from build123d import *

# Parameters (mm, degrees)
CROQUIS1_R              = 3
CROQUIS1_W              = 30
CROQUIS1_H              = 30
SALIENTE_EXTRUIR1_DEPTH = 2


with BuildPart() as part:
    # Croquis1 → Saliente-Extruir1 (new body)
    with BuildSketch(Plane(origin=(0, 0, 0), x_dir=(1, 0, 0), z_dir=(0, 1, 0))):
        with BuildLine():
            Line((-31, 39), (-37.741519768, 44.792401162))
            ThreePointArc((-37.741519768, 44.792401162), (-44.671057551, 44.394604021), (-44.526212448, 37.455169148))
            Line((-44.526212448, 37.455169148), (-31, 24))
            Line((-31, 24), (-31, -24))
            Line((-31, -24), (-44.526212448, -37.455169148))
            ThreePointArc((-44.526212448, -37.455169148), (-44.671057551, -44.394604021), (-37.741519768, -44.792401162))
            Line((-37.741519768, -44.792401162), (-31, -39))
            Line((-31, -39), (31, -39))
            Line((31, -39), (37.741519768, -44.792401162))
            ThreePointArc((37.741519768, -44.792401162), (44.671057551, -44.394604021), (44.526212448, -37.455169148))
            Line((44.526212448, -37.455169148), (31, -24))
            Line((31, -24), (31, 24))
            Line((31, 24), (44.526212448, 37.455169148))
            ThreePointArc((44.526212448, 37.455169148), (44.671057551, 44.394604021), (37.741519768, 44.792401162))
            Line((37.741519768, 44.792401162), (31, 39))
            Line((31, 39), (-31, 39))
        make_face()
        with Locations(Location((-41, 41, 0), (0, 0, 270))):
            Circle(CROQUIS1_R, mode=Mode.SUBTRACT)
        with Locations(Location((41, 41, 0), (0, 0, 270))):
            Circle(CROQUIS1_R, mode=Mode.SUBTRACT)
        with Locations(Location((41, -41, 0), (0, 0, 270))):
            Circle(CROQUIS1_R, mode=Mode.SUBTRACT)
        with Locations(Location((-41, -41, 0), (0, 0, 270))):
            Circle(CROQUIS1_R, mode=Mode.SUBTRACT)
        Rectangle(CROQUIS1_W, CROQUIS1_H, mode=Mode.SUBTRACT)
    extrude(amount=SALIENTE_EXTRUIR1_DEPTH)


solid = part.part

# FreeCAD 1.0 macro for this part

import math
import FreeCAD as App
import Part
import Sketcher

doc = App.newDocument("Part")
params = doc.addObject("Spreadsheet::Sheet", "Params")
for row, (alias, value) in enumerate([
    ("sketch1_diameter", "6 mm"),
    ("sketch1_radius", "5 mm"),
    ("sketch1_width", "62 mm"),
    ("sketch1_width2", "30 mm"),
    ("sketch1_height", "48 mm"),
    ("pad1_length", "2 mm"),
], start=1):
    params.set(f"A{row}", alias)
    params.set(f"B{row}", "=" + value)
    params.setAlias(f"B{row}", alias)

body = doc.addObject("PartDesign::Body", "Body")

# Sketch on XZ plane
sketch1 = body.newObject("Sketcher::SketchObject", "Sketch")
sketch1.AttachmentSupport = (doc.getObject("XZ_Plane"), [""])
sketch1.MapMode = "FlatFace"
sketch1.addGeometry(Part.LineSegment(App.Vector(-31, -39, 0), App.Vector(-37.7, -44.8, 0)), False)
sketch1.addGeometry(Part.ArcOfCircle(Part.Circle(App.Vector(-41, -41, 0), App.Vector(0, 0, 1), 5), math.radians(135), math.radians(311)), False)
sketch1.addGeometry(Part.LineSegment(App.Vector(-44.5, -37.5, 0), App.Vector(-31, -24, 0)), False)
sketch1.addGeometry(Part.LineSegment(App.Vector(-31, -24, 0), App.Vector(-31, 24, 0)), False)
sketch1.addGeometry(Part.LineSegment(App.Vector(-31, 24, 0), App.Vector(-44.5, 37.5, 0)), False)
sketch1.addGeometry(Part.ArcOfCircle(Part.Circle(App.Vector(-41, 41, 0), App.Vector(0, 0, 1), 5), math.radians(49), math.radians(225)), False)
sketch1.addGeometry(Part.LineSegment(App.Vector(-37.7, 44.8, 0), App.Vector(-31, 39, 0)), False)
sketch1.addGeometry(Part.LineSegment(App.Vector(-31, 39, 0), App.Vector(31, 39, 0)), False)
sketch1.addGeometry(Part.LineSegment(App.Vector(31, 39, 0), App.Vector(37.7, 44.8, 0)), False)
sketch1.addGeometry(Part.ArcOfCircle(Part.Circle(App.Vector(41, 41, 0), App.Vector(0, 0, 1), 5), math.radians(-45), math.radians(131)), False)
sketch1.addGeometry(Part.LineSegment(App.Vector(44.5, 37.5, 0), App.Vector(31, 24, 0)), False)
sketch1.addGeometry(Part.LineSegment(App.Vector(31, 24, 0), App.Vector(31, -24, 0)), False)
sketch1.addGeometry(Part.LineSegment(App.Vector(31, -24, 0), App.Vector(44.5, -37.5, 0)), False)
sketch1.addGeometry(Part.ArcOfCircle(Part.Circle(App.Vector(41, -41, 0), App.Vector(0, 0, 1), 5), math.radians(-131), math.radians(45)), False)
sketch1.addGeometry(Part.LineSegment(App.Vector(37.7, -44.8, 0), App.Vector(31, -39, 0)), False)
sketch1.addGeometry(Part.LineSegment(App.Vector(31, -39, 0), App.Vector(-31, -39, 0)), False)
sketch1.addGeometry(Part.Circle(App.Vector(-41, 41, 0), App.Vector(0, 0, 1), 3), False)
sketch1.addGeometry(Part.Circle(App.Vector(41, 41, 0), App.Vector(0, 0, 1), 3), False)
sketch1.addGeometry(Part.Circle(App.Vector(-41, -41, 0), App.Vector(0, 0, 1), 3), False)
sketch1.addGeometry(Part.LineSegment(App.Vector(15, 15, 0), App.Vector(-15, 15, 0)), False)
sketch1.addGeometry(Part.LineSegment(App.Vector(-15, 15, 0), App.Vector(-15, -15, 0)), False)
sketch1.addGeometry(Part.LineSegment(App.Vector(-15, -15, 0), App.Vector(15, -15, 0)), False)
sketch1.addGeometry(Part.LineSegment(App.Vector(15, -15, 0), App.Vector(15, 15, 0)), False)
sketch1.addGeometry(Part.Circle(App.Vector(41, -41, 0), App.Vector(0, 0, 1), 3), False)
sketch1.addConstraint(Sketcher.Constraint("Tangent", 0, 2, 1, 2))
sketch1.addConstraint(Sketcher.Constraint("Tangent", 1, 1, 2, 1))
sketch1.addConstraint(Sketcher.Constraint("Coincident", 2, 2, 3, 1))
sketch1.addConstraint(Sketcher.Constraint("Coincident", 3, 2, 4, 1))
sketch1.addConstraint(Sketcher.Constraint("Tangent", 4, 2, 5, 2))
sketch1.addConstraint(Sketcher.Constraint("Tangent", 5, 1, 6, 1))
sketch1.addConstraint(Sketcher.Constraint("Coincident", 6, 2, 7, 1))
sketch1.addConstraint(Sketcher.Constraint("Coincident", 7, 2, 8, 1))
sketch1.addConstraint(Sketcher.Constraint("Tangent", 8, 2, 9, 2))
sketch1.addConstraint(Sketcher.Constraint("Tangent", 9, 1, 10, 1))
sketch1.addConstraint(Sketcher.Constraint("Coincident", 10, 2, 11, 1))
sketch1.addConstraint(Sketcher.Constraint("Coincident", 11, 2, 12, 1))
sketch1.addConstraint(Sketcher.Constraint("Tangent", 12, 2, 13, 2))
sketch1.addConstraint(Sketcher.Constraint("Tangent", 13, 1, 14, 1))
sketch1.addConstraint(Sketcher.Constraint("Coincident", 14, 2, 15, 1))
sketch1.addConstraint(Sketcher.Constraint("Coincident", 15, 2, 0, 1))
sketch1.addConstraint(Sketcher.Constraint("Coincident", 19, 2, 20, 1))
sketch1.addConstraint(Sketcher.Constraint("Coincident", 20, 2, 21, 1))
sketch1.addConstraint(Sketcher.Constraint("Coincident", 21, 2, 22, 1))
sketch1.addConstraint(Sketcher.Constraint("Coincident", 22, 2, 19, 1))
sketch1.addConstraint(Sketcher.Constraint("Vertical", 3))
sketch1.addConstraint(Sketcher.Constraint("Horizontal", 7))
sketch1.addConstraint(Sketcher.Constraint("Vertical", 11))
sketch1.addConstraint(Sketcher.Constraint("Horizontal", 15))
sketch1.addConstraint(Sketcher.Constraint("Horizontal", 19))
sketch1.addConstraint(Sketcher.Constraint("Vertical", 20))
sketch1.addConstraint(Sketcher.Constraint("Horizontal", 21))
sketch1.addConstraint(Sketcher.Constraint("Vertical", 22))
sketch1.addConstraint(Sketcher.Constraint("Coincident", 16, 3, 5, 3))
sketch1.addConstraint(Sketcher.Constraint("Coincident", 17, 3, 9, 3))
sketch1.addConstraint(Sketcher.Constraint("Coincident", 18, 3, 1, 3))
sketch1.addConstraint(Sketcher.Constraint("Coincident", 23, 3, 13, 3))
sketch1.addConstraint(Sketcher.Constraint("Equal", 1, 5))
sketch1.addConstraint(Sketcher.Constraint("Equal", 5, 9))
sketch1.addConstraint(Sketcher.Constraint("Equal", 9, 13))
sketch1.addConstraint(Sketcher.Constraint("Equal", 16, 17))
sketch1.addConstraint(Sketcher.Constraint("Equal", 17, 18))
sketch1.addConstraint(Sketcher.Constraint("Equal", 18, 23))
sketch1.addConstraint(Sketcher.Constraint("Symmetric", 1, 3, 9, 3, -1, 1))
sketch1.addConstraint(Sketcher.Constraint("Symmetric", 5, 3, 13, 3, -1, 1))
sketch1.addConstraint(Sketcher.Constraint("Symmetric", 2, 2, 10, 2, -1, 1))
sketch1.addConstraint(Sketcher.Constraint("Symmetric", 6, 2, 14, 2, -1, 1))
sketch1.addConstraint(Sketcher.Constraint("Symmetric", 19, 2, 21, 2, -1, 1))
sketch1.addConstraint(Sketcher.Constraint("Symmetric", 5, 3, 9, 3, -2))
sketch1.addConstraint(Sketcher.Constraint("Parallel", 0, 8))
sketch1.addConstraint(Sketcher.Constraint("Parallel", 4, 12))
sketch1.addConstraint(Sketcher.Constraint("Horizontal", 5, 1, 8, 2))
sketch1.addConstraint(Sketcher.Constraint("Horizontal", 4, 2, 9, 1))
sketch1.addConstraint(Sketcher.Constraint("Vertical", 3, 2, 6, 2))
sketch1.addConstraint(Sketcher.Constraint("Equal", 21, 20))
sketch1.addConstraint(Sketcher.Constraint("Diameter", 16, 6.0))
sketch1.addConstraint(Sketcher.Constraint("Radius", 1, 5.0))
sketch1.addConstraint(Sketcher.Constraint("DistanceX", 7, 1, 7, 2, 62.0))
sketch1.addConstraint(Sketcher.Constraint("DistanceX", 19, 2, 19, 1, 30.0))
sketch1.addConstraint(Sketcher.Constraint("DistanceY", 3, 1, 3, 2, 48.0))
sketch1.addConstraint(Sketcher.Constraint("DistanceX", 1, 3, -1, 1, 41.0))
sketch1.addConstraint(Sketcher.Constraint("DistanceY", 1, 3, -1, 1, 41.0))
sketch1.addConstraint(Sketcher.Constraint("DistanceY", -1, 1, 6, 2, 39.0))
sketch1.setExpression("Constraints[50]", "Params.sketch1_diameter")
sketch1.setExpression("Constraints[51]", "Params.sketch1_radius")
sketch1.setExpression("Constraints[52]", "Params.sketch1_width")
sketch1.setExpression("Constraints[53]", "Params.sketch1_width2")
sketch1.setExpression("Constraints[54]", "Params.sketch1_height")
pad1 = body.newObject("PartDesign::Pad", "Pad")
pad1.Profile = sketch1
pad1.setExpression("Length", "Params.pad1_length")
pad1.Reversed = True

doc.recompute()
